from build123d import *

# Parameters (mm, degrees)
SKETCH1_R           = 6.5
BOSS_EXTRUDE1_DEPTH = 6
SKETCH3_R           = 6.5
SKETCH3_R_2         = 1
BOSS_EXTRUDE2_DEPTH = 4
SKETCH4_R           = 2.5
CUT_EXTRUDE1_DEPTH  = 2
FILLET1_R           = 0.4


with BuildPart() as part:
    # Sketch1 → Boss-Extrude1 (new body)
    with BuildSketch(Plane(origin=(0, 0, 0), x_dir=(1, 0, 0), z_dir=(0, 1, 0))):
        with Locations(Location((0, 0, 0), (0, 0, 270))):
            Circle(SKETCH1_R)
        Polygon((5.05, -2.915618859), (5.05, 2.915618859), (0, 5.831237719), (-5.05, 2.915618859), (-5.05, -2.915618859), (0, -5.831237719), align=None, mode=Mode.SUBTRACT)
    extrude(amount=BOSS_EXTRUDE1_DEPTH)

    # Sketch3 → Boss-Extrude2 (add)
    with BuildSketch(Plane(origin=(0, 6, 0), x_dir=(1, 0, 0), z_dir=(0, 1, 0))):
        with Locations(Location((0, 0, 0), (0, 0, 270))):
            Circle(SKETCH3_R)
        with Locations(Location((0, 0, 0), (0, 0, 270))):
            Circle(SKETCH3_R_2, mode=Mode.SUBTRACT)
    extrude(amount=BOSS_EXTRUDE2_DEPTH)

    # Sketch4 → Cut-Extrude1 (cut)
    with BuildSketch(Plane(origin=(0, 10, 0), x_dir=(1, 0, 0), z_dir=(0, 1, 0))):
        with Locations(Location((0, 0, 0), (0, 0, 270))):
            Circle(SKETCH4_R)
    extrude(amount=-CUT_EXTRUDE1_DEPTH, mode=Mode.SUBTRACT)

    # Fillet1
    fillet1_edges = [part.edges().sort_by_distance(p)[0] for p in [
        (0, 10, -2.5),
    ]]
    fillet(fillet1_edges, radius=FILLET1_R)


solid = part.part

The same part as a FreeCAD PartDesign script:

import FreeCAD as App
import Part
import Sketcher
from FreeCAD import Vector
Q = App.Units.Quantity


def edges_at(feature, points):
    """Names of the edges that pass closest to the given points."""
    edges = feature.Shape.Edges
    near = lambda p: min(range(len(edges)), key=lambda i: edges[i].distToShape(Part.Vertex(*p))[0])
    return sorted({f"Edge{near(p) + 1}" for p in points})


def add_polygon(sketch, points):
    """Adds a closed chain of lines whose ends are joined by coincident constraints."""
    first, n = sketch.GeometryCount, len(points)
    for a, b in zip(points, points[1:] + points[:1]):
        sketch.addGeometry(Part.LineSegment(App.Vector(*a, 0), App.Vector(*b, 0)), False)
    for i in range(n):
        sketch.addConstraint(Sketcher.Constraint("Coincident", first + i, 2, first + (i + 1) % n, 1))

doc = App.newDocument("Part")
params = doc.addObject("Spreadsheet::Sheet", "Params")
for row, (alias, value) in enumerate([
    ("sketch1_diameter", "13 mm"),
    ("pad1_length", "6 mm"),
    ("sketch2_diameter", "13 mm"),
    ("sketch2_diameter2", "2 mm"),
    ("pad2_length", "4 mm"),
    ("sketch3_diameter", "5 mm"),
    ("pocket1_length", "2 mm"),
    ("fillet_radius", "0.4 mm"),
], start=1):
    params.set(f"A{row}", alias)
    params.set(f"B{row}", "=" + value)
    params.setAlias(f"B{row}", alias)

body = doc.addObject("PartDesign::Body", "Body")

# Sketch on XZ plane
sketch1 = body.newObject("Sketcher::SketchObject", "Sketch")
sketch1.AttachmentSupport = (doc.getObject("XZ_Plane"), [""])
sketch1.MapMode = "FlatFace"
sketch1.addGeometry(Part.Circle(Vector(0, 0, 0), Vector(0, 0, 1), 6), False)  # 0
add_polygon(sketch1, [(5, -3), (5, 3), (0, 6), (-5, 3), (-5, -3), (0, -6)])  # lines 1-6
sketch1.addConstraint([
    Sketcher.Constraint("Vertical", 1),
    Sketcher.Constraint("Vertical", 4),
    Sketcher.Constraint("Coincident", 0, 3, -1, 1),
    Sketcher.Constraint("Symmetric", 1, 2, 4, 2, -1, 1),
    Sketcher.Constraint("Symmetric", 2, 2, 5, 2, -1, 1),
    Sketcher.Constraint("PointOnObject", 2, 2, -2),
    Sketcher.Constraint("Parallel", 3, 6),
    Sketcher.Constraint("Horizontal", 1, 2, 3, 2),
    Sketcher.Constraint("Diameter", 0, Q("13 mm")),
    Sketcher.Constraint("Angle", 2, Q("150 deg")),
    Sketcher.Constraint("DistanceX", 3, 2, 1, 2, Q("10.1 mm")),
    Sketcher.Constraint("DistanceY", 1, 1, 1, 2, Q("5.831238 mm")),
])
sketch1.setExpression("Constraints[14]", "Params.sketch1_diameter")
pad1 = body.newObject("PartDesign::Pad", "Pad")
pad1.Profile = sketch1
pad1.setExpression("Length", "Params.pad1_length")
pad1.Reversed = True

# Sketch on XZ plane
sketch2 = body.newObject("Sketcher::SketchObject", "Sketch001")
sketch2.AttachmentSupport = (doc.getObject("XZ_Plane"), [""])
sketch2.MapMode = "FlatFace"
sketch2.AttachmentOffset = App.Placement(Vector(0, 0, -6), App.Rotation())
sketch2.addGeometry([
    Part.Circle(Vector(0, 0, 0), Vector(0, 0, 1), 6.5),
    Part.Circle(Vector(0, 0, 0), Vector(0, 0, 1), 1),
], False)
sketch2.addConstraint([
    Sketcher.Constraint("Coincident", 0, 3, -1, 1),
    Sketcher.Constraint("Coincident", 1, 3, -1, 1),
    Sketcher.Constraint("Diameter", 0, Q("13 mm")),
    Sketcher.Constraint("Diameter", 1, Q("2 mm")),
])
sketch2.setExpression("Constraints[2]", "Params.sketch2_diameter")
sketch2.setExpression("Constraints[3]", "Params.sketch2_diameter2")
pad2 = body.newObject("PartDesign::Pad", "Pad001")
pad2.Profile = sketch2
pad2.setExpression("Length", "Params.pad2_length")
pad2.Reversed = True

# Sketch on XZ plane
sketch3 = body.newObject("Sketcher::SketchObject", "Sketch002")
sketch3.AttachmentSupport = (doc.getObject("XZ_Plane"), [""])
sketch3.MapMode = "FlatFace"
sketch3.AttachmentOffset = App.Placement(Vector(0, 0, -10), App.Rotation())
sketch3.addGeometry(Part.Circle(Vector(0, 0, 0), Vector(0, 0, 1), 2.5), False)
sketch3.addConstraint([
    Sketcher.Constraint("Coincident", 0, 3, -1, 1),
    Sketcher.Constraint("Diameter", 0, Q("5 mm")),
])
sketch3.setExpression("Constraints[1]", "Params.sketch3_diameter")
pocket1 = body.newObject("PartDesign::Pocket", "Pocket")
pocket1.Profile = sketch3
pocket1.setExpression("Length", "Params.pocket1_length")
pocket1.Reversed = True
doc.recompute()

fillet = body.newObject("PartDesign::Fillet", "Fillet")
fillet.Base = (pocket1, edges_at(pocket1, [(0, 10, -2.5)]))
fillet.setExpression("Radius", "Params.fillet_radius")

doc.recompute()
